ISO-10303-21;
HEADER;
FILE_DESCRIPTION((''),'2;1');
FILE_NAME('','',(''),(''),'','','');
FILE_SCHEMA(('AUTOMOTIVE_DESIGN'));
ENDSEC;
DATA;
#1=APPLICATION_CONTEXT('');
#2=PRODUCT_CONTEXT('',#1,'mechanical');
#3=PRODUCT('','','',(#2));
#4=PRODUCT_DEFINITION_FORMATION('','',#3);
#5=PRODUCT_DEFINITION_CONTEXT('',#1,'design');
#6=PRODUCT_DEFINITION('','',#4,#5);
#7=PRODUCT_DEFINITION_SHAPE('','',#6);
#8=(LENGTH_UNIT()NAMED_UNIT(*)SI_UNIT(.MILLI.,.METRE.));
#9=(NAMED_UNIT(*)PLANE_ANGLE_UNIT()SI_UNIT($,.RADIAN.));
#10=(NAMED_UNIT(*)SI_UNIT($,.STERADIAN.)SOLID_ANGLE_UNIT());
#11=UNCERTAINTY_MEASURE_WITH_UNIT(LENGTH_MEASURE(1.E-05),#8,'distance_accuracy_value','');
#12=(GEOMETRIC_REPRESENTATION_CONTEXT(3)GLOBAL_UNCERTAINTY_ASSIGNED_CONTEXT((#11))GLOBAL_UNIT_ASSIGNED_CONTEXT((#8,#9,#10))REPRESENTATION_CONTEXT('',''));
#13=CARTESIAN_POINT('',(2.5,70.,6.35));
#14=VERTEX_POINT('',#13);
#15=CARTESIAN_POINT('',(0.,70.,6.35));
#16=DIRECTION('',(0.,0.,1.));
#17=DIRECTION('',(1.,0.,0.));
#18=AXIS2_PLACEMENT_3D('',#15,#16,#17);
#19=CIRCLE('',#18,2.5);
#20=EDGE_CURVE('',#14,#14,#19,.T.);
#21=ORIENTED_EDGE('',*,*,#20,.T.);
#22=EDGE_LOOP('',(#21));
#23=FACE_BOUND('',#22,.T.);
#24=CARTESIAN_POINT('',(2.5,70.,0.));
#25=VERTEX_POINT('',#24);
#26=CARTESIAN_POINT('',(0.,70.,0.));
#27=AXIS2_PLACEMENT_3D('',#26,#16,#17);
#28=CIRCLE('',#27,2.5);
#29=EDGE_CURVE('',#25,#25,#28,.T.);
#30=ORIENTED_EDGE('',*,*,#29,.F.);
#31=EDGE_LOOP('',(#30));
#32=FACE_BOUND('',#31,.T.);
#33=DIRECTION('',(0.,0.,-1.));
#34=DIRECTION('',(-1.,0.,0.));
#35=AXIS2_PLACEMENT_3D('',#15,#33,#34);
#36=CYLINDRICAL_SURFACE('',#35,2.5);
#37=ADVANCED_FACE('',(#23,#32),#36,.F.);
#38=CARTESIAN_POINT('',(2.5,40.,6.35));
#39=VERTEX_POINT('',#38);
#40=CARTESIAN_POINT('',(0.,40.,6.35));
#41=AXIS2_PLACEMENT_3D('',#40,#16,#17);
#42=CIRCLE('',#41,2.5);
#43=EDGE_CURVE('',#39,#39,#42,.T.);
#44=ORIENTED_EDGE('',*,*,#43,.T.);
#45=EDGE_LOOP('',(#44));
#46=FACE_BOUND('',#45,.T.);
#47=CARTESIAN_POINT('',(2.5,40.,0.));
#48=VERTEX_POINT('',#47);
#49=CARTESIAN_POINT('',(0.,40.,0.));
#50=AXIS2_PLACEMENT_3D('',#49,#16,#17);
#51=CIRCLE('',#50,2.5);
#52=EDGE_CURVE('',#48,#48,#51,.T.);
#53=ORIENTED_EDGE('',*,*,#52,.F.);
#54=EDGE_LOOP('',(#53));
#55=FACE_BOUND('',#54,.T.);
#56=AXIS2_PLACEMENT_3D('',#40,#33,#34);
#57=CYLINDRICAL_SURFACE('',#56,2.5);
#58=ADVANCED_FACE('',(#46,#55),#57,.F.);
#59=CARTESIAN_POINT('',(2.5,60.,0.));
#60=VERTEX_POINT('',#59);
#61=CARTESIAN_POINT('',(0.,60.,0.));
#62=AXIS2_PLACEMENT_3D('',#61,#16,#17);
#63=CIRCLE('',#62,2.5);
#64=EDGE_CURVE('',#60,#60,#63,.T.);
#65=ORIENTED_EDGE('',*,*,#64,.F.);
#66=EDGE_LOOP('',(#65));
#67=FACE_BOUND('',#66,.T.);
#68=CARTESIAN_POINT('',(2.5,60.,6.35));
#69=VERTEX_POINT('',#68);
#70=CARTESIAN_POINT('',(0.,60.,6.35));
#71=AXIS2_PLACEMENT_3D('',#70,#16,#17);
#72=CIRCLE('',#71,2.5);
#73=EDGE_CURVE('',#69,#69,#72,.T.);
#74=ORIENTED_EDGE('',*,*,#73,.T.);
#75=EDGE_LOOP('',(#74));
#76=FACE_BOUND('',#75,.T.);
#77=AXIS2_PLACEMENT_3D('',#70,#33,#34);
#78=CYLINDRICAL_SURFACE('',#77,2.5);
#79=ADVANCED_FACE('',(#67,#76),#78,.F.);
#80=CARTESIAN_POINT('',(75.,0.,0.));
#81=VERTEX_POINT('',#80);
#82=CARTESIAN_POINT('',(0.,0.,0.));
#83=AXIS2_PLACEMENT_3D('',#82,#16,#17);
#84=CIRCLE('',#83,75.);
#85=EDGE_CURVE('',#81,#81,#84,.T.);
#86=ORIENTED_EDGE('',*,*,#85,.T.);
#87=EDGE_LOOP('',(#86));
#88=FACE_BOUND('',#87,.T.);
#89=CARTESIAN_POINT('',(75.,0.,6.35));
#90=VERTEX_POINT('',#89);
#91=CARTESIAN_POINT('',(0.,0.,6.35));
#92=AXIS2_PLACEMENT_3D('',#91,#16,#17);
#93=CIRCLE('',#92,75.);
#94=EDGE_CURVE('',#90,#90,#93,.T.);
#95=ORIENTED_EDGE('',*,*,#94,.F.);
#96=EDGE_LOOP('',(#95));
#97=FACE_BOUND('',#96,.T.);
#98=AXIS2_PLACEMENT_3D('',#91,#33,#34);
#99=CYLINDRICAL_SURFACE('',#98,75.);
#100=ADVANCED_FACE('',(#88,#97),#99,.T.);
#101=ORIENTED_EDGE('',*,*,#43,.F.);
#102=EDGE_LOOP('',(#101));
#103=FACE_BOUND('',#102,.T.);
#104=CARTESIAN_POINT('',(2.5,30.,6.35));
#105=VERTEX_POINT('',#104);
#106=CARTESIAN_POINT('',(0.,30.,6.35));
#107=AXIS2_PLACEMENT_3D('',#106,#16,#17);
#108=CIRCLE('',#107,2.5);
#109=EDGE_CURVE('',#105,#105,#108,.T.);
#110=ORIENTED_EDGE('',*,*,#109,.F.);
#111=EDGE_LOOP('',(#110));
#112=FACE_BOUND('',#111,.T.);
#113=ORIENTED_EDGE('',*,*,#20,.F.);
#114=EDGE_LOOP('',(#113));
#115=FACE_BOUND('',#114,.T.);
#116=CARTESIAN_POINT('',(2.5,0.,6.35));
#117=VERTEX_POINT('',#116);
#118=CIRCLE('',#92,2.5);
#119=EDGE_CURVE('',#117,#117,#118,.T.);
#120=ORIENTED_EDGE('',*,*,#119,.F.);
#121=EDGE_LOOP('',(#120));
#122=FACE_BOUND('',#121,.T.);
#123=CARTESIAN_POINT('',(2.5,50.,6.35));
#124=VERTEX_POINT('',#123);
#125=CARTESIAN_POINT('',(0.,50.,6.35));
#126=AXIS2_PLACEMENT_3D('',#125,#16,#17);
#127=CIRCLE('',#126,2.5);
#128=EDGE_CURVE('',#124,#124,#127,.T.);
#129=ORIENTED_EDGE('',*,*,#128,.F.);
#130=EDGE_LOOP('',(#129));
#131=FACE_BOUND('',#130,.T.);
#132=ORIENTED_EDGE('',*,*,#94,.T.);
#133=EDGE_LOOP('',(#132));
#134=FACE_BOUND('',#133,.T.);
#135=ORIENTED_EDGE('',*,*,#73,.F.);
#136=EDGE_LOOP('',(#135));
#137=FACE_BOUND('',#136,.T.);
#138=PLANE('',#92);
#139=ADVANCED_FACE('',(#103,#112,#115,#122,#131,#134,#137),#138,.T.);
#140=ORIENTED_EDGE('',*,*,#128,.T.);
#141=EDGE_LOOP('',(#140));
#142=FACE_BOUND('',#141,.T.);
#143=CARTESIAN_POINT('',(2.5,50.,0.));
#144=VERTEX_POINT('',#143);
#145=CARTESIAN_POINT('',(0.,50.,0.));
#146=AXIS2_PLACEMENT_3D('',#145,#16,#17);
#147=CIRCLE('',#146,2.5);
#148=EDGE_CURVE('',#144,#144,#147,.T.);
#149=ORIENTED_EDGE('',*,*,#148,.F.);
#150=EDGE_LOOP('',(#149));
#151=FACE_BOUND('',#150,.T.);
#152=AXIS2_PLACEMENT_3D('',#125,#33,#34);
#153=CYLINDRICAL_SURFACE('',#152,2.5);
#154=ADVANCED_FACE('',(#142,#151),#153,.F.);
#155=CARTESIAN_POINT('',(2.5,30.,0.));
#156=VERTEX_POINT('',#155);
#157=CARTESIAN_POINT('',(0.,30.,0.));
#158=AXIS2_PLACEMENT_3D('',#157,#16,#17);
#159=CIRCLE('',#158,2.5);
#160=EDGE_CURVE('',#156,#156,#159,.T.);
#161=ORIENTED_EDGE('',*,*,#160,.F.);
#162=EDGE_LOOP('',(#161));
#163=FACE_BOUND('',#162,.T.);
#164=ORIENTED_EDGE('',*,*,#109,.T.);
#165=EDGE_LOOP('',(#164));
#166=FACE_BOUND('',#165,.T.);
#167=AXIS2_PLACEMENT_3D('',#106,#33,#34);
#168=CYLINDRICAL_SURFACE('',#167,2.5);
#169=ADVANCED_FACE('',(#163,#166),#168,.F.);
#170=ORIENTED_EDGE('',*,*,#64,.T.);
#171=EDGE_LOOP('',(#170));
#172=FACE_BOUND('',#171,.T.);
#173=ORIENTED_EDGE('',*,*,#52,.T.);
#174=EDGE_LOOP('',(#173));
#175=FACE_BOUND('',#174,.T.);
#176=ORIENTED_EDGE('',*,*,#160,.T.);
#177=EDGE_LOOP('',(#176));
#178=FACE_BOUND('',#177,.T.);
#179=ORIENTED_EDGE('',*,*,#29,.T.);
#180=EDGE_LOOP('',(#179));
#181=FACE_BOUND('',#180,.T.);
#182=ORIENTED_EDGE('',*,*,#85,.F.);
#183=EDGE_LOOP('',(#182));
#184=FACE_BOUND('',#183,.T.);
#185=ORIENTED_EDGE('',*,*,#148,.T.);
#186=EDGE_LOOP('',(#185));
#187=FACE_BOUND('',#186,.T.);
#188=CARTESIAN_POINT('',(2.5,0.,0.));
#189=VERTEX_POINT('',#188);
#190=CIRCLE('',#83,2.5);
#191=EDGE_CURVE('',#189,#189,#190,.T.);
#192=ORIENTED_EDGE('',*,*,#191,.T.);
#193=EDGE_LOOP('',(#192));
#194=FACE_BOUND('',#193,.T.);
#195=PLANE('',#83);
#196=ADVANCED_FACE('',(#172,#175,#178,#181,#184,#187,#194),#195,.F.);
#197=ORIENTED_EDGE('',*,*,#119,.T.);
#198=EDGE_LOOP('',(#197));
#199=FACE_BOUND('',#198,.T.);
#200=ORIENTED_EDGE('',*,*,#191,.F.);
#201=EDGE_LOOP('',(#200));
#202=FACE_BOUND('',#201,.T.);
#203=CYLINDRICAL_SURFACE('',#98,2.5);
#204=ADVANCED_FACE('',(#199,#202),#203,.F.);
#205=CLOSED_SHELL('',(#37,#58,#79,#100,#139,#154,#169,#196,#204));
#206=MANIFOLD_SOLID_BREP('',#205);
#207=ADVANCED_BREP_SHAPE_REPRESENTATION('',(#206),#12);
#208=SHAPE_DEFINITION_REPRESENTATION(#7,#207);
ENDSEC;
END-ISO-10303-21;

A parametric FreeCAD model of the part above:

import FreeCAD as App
import Part
import Sketcher
from FreeCAD import Vector

doc = App.newDocument("Part")
body = doc.addObject("PartDesign::Body", "Body")

# Sketch on XY plane
sketch1 = body.newObject("Sketcher::SketchObject", "Sketch")
sketch1.AttachmentSupport = (doc.getObject("XY_Plane"), [""])
sketch1.MapMode = "FlatFace"
sketch1.addGeometry([
    Part.Circle(Vector(0, 0, 0), Vector(0, 0, 1), 75),  # 0
    Part.Circle(Vector(0, 0, 0), Vector(0, 0, 1), 2.5),  # 1
    Part.Circle(Vector(0, 30, 0), Vector(0, 0, 1), 2.5),  # 2
    Part.Circle(Vector(0, 40, 0), Vector(0, 0, 1), 2.5),  # 3
    Part.Circle(Vector(0, 50, 0), Vector(0, 0, 1), 2.5),  # 4
    Part.Circle(Vector(0, 60, 0), Vector(0, 0, 1), 2.5),  # 5
    Part.Circle(Vector(0, 70, 0), Vector(0, 0, 1), 2.5),  # 6
], False)
sketch1.addConstraint([
    Sketcher.Constraint("Coincident", 0, 3, -1, 1),
    Sketcher.Constraint("Coincident", 1, 3, -1, 1),
    Sketcher.Constraint("Equal", 1, 2),
    Sketcher.Constraint("Equal", 2, 3),
    Sketcher.Constraint("Equal", 3, 4),
    Sketcher.Constraint("Equal", 4, 5),
    Sketcher.Constraint("Equal", 5, 6),
    Sketcher.Constraint("PointOnObject", 2, 3, -2),
    Sketcher.Constraint("PointOnObject", 3, 3, -2),
    Sketcher.Constraint("PointOnObject", 4, 3, -2),
    Sketcher.Constraint("PointOnObject", 5, 3, -2),
    Sketcher.Constraint("PointOnObject", 6, 3, -2),
    Sketcher.Constraint("Diameter", 0, 150.0),
    Sketcher.Constraint("Diameter", 1, 5.0),
    Sketcher.Constraint("DistanceY", -1, 1, 2, 3, 30.0),
    Sketcher.Constraint("DistanceY", -1, 1, 3, 3, 40.0),
    Sketcher.Constraint("DistanceY", -1, 1, 4, 3, 50.0),
    Sketcher.Constraint("DistanceY", -1, 1, 5, 3, 60.0),
    Sketcher.Constraint("DistanceY", -1, 1, 6, 3, 70.0),
])
pad1 = body.newObject("PartDesign::Pad", "Pad")
pad1.Profile = sketch1
pad1.Length = 6.35

doc.recompute()
